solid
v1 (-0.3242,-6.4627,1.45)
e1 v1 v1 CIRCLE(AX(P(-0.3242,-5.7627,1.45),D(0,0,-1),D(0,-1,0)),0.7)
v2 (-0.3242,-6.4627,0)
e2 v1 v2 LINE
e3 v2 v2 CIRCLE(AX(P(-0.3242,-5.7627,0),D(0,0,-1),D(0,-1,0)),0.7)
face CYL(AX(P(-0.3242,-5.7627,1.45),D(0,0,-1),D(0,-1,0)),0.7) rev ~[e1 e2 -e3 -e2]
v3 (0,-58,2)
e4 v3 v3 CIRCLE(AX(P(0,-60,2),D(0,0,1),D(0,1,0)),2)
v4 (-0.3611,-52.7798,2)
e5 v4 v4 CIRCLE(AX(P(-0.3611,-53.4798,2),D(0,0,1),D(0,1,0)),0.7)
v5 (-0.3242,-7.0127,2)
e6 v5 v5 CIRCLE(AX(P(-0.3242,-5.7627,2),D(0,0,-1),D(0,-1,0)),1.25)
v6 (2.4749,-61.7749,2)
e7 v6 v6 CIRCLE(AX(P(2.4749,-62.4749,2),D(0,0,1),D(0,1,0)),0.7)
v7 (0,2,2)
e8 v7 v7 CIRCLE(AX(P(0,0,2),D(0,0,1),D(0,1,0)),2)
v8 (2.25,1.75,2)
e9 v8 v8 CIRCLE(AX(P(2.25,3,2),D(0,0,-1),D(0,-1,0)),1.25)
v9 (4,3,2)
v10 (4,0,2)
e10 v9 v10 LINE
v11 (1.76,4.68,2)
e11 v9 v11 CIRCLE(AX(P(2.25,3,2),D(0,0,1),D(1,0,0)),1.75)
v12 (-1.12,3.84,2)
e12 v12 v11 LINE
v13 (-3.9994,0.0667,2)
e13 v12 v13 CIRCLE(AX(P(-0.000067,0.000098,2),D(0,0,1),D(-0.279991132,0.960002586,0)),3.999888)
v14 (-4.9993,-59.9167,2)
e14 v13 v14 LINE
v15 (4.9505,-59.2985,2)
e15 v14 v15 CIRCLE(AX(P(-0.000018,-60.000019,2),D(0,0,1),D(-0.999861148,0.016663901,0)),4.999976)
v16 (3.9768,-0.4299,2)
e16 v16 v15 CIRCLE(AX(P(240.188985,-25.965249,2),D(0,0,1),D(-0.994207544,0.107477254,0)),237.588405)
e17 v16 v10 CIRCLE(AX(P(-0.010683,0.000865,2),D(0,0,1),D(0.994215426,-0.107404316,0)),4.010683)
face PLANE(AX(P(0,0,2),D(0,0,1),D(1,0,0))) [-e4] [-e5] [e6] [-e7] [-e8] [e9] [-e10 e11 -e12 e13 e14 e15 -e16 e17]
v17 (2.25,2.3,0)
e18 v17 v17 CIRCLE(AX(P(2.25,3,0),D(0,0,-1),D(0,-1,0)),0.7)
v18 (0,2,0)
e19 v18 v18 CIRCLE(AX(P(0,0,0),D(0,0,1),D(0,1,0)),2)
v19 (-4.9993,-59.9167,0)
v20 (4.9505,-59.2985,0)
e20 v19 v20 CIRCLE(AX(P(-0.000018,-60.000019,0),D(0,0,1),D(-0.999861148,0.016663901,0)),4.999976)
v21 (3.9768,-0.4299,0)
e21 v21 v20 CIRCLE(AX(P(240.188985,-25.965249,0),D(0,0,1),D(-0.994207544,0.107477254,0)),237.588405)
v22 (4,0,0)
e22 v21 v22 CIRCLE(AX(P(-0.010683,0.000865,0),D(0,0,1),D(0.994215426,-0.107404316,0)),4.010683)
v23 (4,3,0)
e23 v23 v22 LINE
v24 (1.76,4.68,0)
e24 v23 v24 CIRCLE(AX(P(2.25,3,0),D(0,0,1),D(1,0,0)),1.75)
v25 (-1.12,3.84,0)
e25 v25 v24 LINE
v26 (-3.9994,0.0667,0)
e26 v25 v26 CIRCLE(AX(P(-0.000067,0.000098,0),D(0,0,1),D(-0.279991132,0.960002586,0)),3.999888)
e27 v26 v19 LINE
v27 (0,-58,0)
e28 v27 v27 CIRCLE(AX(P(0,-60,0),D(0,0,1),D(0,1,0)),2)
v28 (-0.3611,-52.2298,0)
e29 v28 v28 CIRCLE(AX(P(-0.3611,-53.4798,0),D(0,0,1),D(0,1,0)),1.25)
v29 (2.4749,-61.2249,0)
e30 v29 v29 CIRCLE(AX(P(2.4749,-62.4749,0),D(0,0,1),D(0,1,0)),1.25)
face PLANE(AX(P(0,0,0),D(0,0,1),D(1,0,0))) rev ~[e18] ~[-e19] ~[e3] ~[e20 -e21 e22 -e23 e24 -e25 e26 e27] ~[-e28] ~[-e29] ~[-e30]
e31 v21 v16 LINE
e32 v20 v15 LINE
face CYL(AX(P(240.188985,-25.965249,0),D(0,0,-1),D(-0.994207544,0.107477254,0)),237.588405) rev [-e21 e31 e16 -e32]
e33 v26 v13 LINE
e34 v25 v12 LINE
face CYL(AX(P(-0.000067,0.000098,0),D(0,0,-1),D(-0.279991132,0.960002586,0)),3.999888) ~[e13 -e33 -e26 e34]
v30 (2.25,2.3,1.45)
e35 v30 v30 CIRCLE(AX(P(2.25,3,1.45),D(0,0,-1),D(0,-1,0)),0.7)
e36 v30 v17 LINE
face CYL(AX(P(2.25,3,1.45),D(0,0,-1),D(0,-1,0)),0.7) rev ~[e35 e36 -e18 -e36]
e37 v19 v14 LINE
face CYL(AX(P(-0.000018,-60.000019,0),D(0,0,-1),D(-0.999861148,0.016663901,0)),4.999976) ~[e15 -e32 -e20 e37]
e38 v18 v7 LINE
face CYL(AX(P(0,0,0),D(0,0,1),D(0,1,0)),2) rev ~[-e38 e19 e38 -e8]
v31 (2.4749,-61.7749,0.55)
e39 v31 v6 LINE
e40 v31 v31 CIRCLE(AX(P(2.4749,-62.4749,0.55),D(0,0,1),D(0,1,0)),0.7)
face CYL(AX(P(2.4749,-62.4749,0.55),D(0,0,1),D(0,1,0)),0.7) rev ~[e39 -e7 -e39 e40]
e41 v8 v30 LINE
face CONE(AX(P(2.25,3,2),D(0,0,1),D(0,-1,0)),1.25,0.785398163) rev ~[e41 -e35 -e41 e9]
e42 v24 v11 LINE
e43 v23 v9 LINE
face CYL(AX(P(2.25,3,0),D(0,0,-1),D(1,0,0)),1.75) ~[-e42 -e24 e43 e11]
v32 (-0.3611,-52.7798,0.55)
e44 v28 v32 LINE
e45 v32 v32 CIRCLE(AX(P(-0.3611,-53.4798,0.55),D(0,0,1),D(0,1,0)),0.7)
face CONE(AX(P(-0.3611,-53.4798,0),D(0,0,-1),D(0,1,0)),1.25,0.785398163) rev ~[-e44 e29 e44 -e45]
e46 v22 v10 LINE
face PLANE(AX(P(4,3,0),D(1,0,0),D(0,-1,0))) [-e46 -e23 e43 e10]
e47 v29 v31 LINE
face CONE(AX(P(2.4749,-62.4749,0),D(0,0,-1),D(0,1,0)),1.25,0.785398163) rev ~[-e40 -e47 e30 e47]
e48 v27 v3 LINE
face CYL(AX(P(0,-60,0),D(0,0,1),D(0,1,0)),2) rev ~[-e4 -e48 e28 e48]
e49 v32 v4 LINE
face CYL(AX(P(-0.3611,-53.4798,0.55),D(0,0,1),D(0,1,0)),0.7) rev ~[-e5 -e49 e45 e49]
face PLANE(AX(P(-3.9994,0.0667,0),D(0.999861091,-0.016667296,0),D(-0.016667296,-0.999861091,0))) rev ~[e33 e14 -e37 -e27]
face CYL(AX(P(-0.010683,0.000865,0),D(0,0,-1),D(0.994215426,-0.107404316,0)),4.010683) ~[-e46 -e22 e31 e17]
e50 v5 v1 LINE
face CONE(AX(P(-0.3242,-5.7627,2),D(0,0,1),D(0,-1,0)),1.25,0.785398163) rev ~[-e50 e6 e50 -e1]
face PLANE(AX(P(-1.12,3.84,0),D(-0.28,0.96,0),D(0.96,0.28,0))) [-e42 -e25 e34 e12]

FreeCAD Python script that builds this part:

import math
import FreeCAD as App
import Part
import Sketcher
Q = App.Units.Quantity

doc = App.newDocument("Part")
body = doc.addObject("PartDesign::Body", "Body")

sketch1 = body.newObject("Sketcher::SketchObject", "Sketch")
sketch1.AttachmentSupport = (doc.getObject("XY_Plane"), [""])
sketch1.MapMode = "FlatFace"
sketch1.addGeometry(Part.ArcOfCircle(Part.Circle(App.Vector(240.19, -25.97, 0), App.Vector(0, 0, 1), 237.59), math.radians(173.83), math.radians(188.07)), False)
sketch1.addGeometry(Part.ArcOfCircle(Part.Circle(App.Vector(-0.01, 0, 0), App.Vector(0, 0, 1), 4.01), math.radians(-6.17), math.radians(-0.01)), False)
sketch1.addGeometry(Part.LineSegment(App.Vector(4, 0, 0), App.Vector(4, 3, 0)), False)
sketch1.addGeometry(Part.ArcOfCircle(Part.Circle(App.Vector(2.25, 3, 0), App.Vector(0, 0, 1), 1.75), math.radians(0), math.radians(106)), False)
sketch1.addGeometry(Part.LineSegment(App.Vector(1.76, 4.68, 0), App.Vector(-1.12, 3.84, 0)), False)
sketch1.addGeometry(Part.ArcOfCircle(Part.Circle(App.Vector(0, 0, 0), App.Vector(0, 0, 1), 4), math.radians(106), math.radians(179)), False)
sketch1.addGeometry(Part.LineSegment(App.Vector(-4, 0.07, 0), App.Vector(-5, -59.92, 0)), False)
sketch1.addGeometry(Part.ArcOfCircle(Part.Circle(App.Vector(0, -60, 0), App.Vector(0, 0, 1), 5), math.radians(179), math.radians(368)), False)
sketch1.addConstraint(Sketcher.Constraint("Tangent", 0, 1, 1, 1))
sketch1.addConstraint(Sketcher.Constraint("Tangent", 1, 2, 2, 1))
sketch1.addConstraint(Sketcher.Constraint("Tangent", 2, 2, 3, 1))
sketch1.addConstraint(Sketcher.Constraint("Tangent", 3, 2, 4, 1))
sketch1.addConstraint(Sketcher.Constraint("Tangent", 4, 2, 5, 1))
sketch1.addConstraint(Sketcher.Constraint("Tangent", 5, 2, 6, 1))
sketch1.addConstraint(Sketcher.Constraint("Tangent", 6, 2, 7, 1))
sketch1.addConstraint(Sketcher.Constraint("Tangent", 7, 2, 0, 2))
sketch1.addConstraint(Sketcher.Constraint("Vertical", 2))
sketch1.addConstraint(Sketcher.Constraint("Coincident", 5, 3, -1, 1))
sketch1.addConstraint(Sketcher.Constraint("PointOnObject", 7, 3, -2))
sketch1.addConstraint(Sketcher.Constraint("PointOnObject", 1, 2, -1))
sketch1.addConstraint(Sketcher.Constraint("Radius", 5, Q("4 mm")))
sketch1.addConstraint(Sketcher.Constraint("Radius", 7, Q("5 mm")))
sketch1.addConstraint(Sketcher.Constraint("Radius", 3, Q("1.75 mm")))
sketch1.addConstraint(Sketcher.Constraint("DistanceY", 7, 3, -1, 1, Q("60 mm")))
sketch1.addConstraint(Sketcher.Constraint("DistanceX", -1, 1, 1, 2, Q("4 mm")))
sketch1.addConstraint(Sketcher.Constraint("DistanceY", 2, 1, 2, 2, Q("3 mm")))
sketch1.addConstraint(Sketcher.Constraint("Radius", 0, Q("237.5884 mm")))
sketch1.addConstraint(Sketcher.Constraint("Radius", 1, Q("4.0107 mm")))
pad1 = body.newObject("PartDesign::Pad", "Pad")
pad1.Profile = sketch1
pad1.Length = 2

sketch2 = body.newObject("Sketcher::SketchObject", "Sketch001")
sketch2.AttachmentSupport = (doc.getObject("XY_Plane"), [""])
sketch2.MapMode = "FlatFace"
sketch2.addGeometry(Part.Circle(App.Vector(0, 0, 0), App.Vector(0, 0, 1), 2), False)
sketch2.addGeometry(Part.Circle(App.Vector(0, -60, 0), App.Vector(0, 0, 1), 2), False)
sketch2.addConstraint(Sketcher.Constraint("Coincident", 0, 3, -1, 1))
sketch2.addConstraint(Sketcher.Constraint("Equal", 0, 1))
sketch2.addConstraint(Sketcher.Constraint("PointOnObject", 1, 3, -2))
sketch2.addConstraint(Sketcher.Constraint("Diameter", 0, Q("4 mm")))
sketch2.addConstraint(Sketcher.Constraint("DistanceY", 1, 3, -1, 1, Q("60 mm")))
doc.recompute()
hole = body.newObject("PartDesign::Hole", "Hole")
hole.Profile = sketch2
hole.ThreadType = "None"
hole.Diameter = 4
hole.DepthType = "ThroughAll"
hole.Reversed = True

sketch3 = body.newObject("Sketcher::SketchObject", "Sketch002")
sketch3.AttachmentSupport = (doc.getObject("XY_Plane"), [""])
sketch3.MapMode = "FlatFace"
sketch3.addGeometry(Part.Circle(App.Vector(-0.4, -53.5, 0), App.Vector(0, 0, 1), 0.7), False)
sketch3.addGeometry(Part.Circle(App.Vector(2.5, -62.5, 0), App.Vector(0, 0, 1), 0.7), False)
sketch3.addConstraint(Sketcher.Constraint("Equal", 0, 1))
sketch3.addConstraint(Sketcher.Constraint("Diameter", 0, Q("1.4 mm")))
sketch3.addConstraint(Sketcher.Constraint("DistanceX", 0, 3, -1, 1, Q("0.361 mm")))
sketch3.addConstraint(Sketcher.Constraint("DistanceX", -1, 1, 1, 3, Q("2.475 mm")))
sketch3.addConstraint(Sketcher.Constraint("DistanceY", 1, 3, -1, 1, Q("62.475 mm")))
sketch3.addConstraint(Sketcher.Constraint("DistanceY", 1, 3, 0, 3, Q("8.995 mm")))
doc.recompute()
hole2 = body.newObject("PartDesign::Hole", "Hole001")
hole2.Profile = sketch3
hole2.ThreadType = "None"
hole2.Diameter = 1.4
hole2.DepthType = "ThroughAll"
hole2.HoleCutType = "Countersink"
hole2.HoleCutDiameter = 2.5
hole2.HoleCutCountersinkAngle = 90
hole2.Reversed = True

sketch4 = body.newObject("Sketcher::SketchObject", "Sketch003")
sketch4.AttachmentSupport = (doc.getObject("XY_Plane"), [""])
sketch4.MapMode = "FlatFace"
sketch4.AttachmentOffset = App.Placement(App.Vector(0, 0, 2), App.Rotation())
sketch4.addGeometry(Part.Circle(App.Vector(2.2, 3, 0), App.Vector(0, 0, 1), 0.7), False)
sketch4.addGeometry(Part.Circle(App.Vector(-0.3, -5.8, 0), App.Vector(0, 0, 1), 0.7), False)
sketch4.addConstraint(Sketcher.Constraint("Equal", 0, 1))
sketch4.addConstraint(Sketcher.Constraint("Diameter", 0, Q("1.4 mm")))
sketch4.addConstraint(Sketcher.Constraint("DistanceY", -1, 1, 0, 3, Q("3 mm")))
sketch4.addConstraint(Sketcher.Constraint("DistanceX", -1, 1, 0, 3, Q("2.25 mm")))
sketch4.addConstraint(Sketcher.Constraint("DistanceX", 1, 3, -1, 1, Q("0.3242 mm")))
sketch4.addConstraint(Sketcher.Constraint("DistanceY", 1, 3, -1, 1, Q("5.7627 mm")))
doc.recompute()
hole3 = body.newObject("PartDesign::Hole", "Hole002")
hole3.Profile = sketch4
hole3.ThreadType = "None"
hole3.Diameter = 1.4
hole3.DepthType = "ThroughAll"
hole3.HoleCutType = "Countersink"
hole3.HoleCutDiameter = 2.5
hole3.HoleCutCountersinkAngle = 90

doc.recompute()
